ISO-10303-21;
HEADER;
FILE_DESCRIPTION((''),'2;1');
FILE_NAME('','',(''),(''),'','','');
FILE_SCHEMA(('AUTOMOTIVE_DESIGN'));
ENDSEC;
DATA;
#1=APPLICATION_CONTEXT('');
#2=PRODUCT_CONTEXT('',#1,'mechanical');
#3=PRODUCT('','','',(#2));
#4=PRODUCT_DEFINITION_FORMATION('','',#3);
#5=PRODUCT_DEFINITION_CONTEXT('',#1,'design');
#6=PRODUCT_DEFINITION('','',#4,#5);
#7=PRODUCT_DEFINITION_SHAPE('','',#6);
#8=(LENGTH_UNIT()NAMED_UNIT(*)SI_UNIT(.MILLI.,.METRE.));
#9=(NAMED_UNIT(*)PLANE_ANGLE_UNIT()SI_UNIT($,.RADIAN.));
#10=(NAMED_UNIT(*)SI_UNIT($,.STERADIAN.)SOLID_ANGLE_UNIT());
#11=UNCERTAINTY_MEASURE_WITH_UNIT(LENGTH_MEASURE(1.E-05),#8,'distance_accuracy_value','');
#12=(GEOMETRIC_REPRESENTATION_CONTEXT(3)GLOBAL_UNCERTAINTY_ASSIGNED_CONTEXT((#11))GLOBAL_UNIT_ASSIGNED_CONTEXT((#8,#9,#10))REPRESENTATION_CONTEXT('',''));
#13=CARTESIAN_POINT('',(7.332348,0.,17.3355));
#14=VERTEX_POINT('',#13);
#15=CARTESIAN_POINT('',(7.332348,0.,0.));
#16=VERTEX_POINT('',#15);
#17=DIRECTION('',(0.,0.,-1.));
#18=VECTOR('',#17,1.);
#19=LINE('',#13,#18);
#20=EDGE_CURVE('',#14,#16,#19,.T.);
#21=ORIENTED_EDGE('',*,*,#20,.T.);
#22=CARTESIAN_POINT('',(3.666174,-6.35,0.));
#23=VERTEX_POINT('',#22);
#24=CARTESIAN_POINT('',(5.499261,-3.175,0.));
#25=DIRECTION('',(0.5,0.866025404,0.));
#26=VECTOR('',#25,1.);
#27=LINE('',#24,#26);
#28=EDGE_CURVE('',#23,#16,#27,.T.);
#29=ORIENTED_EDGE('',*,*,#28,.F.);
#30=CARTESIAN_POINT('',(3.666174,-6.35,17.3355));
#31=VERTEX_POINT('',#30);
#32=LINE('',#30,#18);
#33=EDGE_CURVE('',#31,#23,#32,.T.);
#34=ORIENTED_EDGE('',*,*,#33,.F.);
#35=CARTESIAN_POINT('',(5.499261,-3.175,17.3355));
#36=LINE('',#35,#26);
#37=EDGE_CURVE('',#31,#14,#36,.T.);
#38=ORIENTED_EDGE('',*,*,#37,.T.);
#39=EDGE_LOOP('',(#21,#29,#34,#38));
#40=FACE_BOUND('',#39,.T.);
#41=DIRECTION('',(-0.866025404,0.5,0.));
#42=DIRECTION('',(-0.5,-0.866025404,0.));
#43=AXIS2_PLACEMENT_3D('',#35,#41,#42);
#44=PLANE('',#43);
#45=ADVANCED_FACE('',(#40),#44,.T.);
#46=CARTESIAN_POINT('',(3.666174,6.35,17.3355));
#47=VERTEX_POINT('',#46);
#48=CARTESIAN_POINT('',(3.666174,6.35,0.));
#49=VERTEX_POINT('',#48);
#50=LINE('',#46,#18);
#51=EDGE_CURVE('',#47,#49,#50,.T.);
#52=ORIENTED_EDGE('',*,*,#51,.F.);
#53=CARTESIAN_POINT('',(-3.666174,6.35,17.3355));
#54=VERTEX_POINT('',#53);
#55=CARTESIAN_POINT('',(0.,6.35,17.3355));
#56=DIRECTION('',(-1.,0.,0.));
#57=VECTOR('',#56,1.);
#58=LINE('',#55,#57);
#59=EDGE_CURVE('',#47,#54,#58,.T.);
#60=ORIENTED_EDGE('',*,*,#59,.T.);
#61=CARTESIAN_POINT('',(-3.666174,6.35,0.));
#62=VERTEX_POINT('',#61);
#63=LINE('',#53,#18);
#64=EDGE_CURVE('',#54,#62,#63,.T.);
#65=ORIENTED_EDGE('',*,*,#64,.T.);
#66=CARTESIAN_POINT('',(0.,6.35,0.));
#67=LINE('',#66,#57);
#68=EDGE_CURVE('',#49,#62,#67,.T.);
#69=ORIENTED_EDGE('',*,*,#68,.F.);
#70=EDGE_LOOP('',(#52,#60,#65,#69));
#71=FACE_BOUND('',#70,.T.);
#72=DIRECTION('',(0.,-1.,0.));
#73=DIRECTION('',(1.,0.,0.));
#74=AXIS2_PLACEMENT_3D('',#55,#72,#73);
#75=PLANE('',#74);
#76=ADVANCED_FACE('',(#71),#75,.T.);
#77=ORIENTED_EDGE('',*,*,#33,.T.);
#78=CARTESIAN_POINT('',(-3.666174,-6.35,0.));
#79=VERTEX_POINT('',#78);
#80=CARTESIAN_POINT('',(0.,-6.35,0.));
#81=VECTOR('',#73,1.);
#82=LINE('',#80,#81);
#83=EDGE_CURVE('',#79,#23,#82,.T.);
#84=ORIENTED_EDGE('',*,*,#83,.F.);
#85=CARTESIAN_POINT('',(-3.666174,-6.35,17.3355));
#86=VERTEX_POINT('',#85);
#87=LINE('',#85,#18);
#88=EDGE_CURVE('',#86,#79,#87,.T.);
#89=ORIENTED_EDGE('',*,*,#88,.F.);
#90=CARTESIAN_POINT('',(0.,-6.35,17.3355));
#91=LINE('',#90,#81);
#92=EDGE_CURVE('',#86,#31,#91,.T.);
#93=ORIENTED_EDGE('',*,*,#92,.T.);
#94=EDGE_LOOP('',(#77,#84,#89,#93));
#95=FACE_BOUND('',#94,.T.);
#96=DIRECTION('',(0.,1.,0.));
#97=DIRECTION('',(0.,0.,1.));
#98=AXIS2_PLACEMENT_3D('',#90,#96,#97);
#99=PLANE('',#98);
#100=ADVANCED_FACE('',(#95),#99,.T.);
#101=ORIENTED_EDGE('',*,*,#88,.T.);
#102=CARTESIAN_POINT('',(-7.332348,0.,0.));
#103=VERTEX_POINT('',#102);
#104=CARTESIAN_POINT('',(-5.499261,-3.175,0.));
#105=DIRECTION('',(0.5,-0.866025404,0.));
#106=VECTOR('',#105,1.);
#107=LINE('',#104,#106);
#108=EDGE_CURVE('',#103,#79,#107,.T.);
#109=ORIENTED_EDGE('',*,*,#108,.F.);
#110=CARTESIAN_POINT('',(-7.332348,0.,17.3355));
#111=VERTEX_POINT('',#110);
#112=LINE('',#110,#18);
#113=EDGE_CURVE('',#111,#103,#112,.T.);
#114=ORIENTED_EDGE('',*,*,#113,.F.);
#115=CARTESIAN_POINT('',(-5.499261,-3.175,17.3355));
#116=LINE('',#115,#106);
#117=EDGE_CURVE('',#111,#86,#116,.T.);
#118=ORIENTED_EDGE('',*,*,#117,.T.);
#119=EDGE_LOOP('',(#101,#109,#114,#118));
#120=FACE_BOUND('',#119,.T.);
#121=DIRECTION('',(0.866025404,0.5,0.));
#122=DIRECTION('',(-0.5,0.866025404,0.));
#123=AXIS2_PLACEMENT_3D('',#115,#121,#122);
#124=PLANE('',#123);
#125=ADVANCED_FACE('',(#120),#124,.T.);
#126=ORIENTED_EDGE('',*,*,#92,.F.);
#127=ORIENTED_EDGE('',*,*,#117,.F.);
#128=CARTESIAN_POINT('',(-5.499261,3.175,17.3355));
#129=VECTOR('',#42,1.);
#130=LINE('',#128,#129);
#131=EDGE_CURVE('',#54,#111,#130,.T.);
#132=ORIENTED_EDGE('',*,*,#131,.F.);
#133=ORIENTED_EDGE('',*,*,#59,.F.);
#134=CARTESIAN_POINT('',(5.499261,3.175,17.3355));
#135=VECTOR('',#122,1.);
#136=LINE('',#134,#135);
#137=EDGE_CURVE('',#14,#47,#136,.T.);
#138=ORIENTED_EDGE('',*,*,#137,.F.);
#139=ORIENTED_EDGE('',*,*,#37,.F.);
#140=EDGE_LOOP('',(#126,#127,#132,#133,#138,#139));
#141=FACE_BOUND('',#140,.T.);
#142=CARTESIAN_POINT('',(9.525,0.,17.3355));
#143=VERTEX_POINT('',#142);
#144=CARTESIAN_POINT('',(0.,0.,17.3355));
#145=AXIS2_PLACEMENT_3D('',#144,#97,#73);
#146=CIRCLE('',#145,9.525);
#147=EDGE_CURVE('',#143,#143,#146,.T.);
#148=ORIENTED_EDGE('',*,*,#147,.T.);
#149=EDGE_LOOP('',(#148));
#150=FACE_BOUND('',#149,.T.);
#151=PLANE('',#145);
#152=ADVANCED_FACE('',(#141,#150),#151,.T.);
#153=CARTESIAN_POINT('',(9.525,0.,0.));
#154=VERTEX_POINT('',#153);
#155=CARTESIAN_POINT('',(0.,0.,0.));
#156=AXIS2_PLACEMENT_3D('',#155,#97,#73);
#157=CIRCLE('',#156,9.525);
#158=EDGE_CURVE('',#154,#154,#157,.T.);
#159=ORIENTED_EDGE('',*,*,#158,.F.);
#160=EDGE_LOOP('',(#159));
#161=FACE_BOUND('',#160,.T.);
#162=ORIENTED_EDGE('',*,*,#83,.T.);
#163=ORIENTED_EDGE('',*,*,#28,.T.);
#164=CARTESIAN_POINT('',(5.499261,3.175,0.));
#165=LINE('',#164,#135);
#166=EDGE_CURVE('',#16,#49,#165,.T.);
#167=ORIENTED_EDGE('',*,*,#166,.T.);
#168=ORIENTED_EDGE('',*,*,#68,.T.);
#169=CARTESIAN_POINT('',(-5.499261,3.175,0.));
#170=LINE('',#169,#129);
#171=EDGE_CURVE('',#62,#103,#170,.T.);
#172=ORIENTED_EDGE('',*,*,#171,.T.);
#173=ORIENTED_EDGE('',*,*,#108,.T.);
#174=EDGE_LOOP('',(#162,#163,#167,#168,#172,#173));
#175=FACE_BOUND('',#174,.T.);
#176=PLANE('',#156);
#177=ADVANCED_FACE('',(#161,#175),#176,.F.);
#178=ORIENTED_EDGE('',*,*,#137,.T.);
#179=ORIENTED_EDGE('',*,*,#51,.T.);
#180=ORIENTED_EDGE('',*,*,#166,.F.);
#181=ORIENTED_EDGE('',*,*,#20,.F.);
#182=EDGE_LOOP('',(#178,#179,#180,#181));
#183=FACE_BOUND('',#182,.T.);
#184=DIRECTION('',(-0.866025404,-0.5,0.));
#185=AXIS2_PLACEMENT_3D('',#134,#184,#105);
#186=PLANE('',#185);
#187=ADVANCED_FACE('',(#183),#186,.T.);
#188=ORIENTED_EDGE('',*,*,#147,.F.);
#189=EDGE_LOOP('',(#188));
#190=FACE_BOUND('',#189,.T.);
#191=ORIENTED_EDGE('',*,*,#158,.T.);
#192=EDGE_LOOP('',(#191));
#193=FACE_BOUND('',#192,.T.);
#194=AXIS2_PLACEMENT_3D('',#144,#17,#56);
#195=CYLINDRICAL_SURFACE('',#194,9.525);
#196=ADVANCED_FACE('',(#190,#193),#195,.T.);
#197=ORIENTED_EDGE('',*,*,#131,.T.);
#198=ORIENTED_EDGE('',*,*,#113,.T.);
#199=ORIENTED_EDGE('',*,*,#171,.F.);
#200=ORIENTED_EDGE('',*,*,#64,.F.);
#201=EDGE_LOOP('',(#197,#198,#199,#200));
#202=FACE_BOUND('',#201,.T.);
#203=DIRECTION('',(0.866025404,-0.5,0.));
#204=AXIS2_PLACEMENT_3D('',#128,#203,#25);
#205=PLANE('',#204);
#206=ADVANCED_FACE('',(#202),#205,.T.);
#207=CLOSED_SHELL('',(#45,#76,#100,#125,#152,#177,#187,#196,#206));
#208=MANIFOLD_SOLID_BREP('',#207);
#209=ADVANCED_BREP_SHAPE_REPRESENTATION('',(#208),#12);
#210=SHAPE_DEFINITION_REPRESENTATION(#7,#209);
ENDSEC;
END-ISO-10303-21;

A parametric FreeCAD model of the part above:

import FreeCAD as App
import Part
import Sketcher
from FreeCAD import Vector
Q = App.Units.Quantity

doc = App.newDocument("Part")
params = doc.addObject("Spreadsheet::Sheet", "Params")
for row, (alias, value) in enumerate([
    ("sketch1_diameter", "0.75 in"),
    ("pad1_length", "0.6825 in"),
], start=1):
    params.set(f"A{row}", alias)
    params.set(f"B{row}", "=" + value)
    params.setAlias(f"B{row}", alias)

body = doc.addObject("PartDesign::Body", "Body")

# Sketch on XY plane
sketch1 = body.newObject("Sketcher::SketchObject", "Sketch")
sketch1.AttachmentSupport = (doc.getObject("XY_Plane"), [""])
sketch1.MapMode = "FlatFace"
sketch1.addGeometry([
    Part.Circle(Vector(0, 0, 0), Vector(0, 0, 1), 10),  # 0
    Part.LineSegment(Vector(4, 6, 0), Vector(7, 0, 0)),  # 1
    Part.LineSegment(Vector(7, 0, 0), Vector(4, -6, 0)),  # 2
    Part.LineSegment(Vector(4, -6, 0), Vector(-4, -6, 0)),  # 3
    Part.LineSegment(Vector(-4, -6, 0), Vector(-7, 0, 0)),  # 4
    Part.LineSegment(Vector(-7, 0, 0), Vector(-4, 6, 0)),  # 5
    Part.LineSegment(Vector(-4, 6, 0), Vector(4, 6, 0)),  # 6
], False)
sketch1.addConstraint([
    Sketcher.Constraint("Coincident", 1, 2, 2, 1),
    Sketcher.Constraint("Coincident", 2, 2, 3, 1),
    Sketcher.Constraint("Coincident", 3, 2, 4, 1),
    Sketcher.Constraint("Coincident", 4, 2, 5, 1),
    Sketcher.Constraint("Coincident", 5, 2, 6, 1),
    Sketcher.Constraint("Coincident", 6, 2, 1, 1),
    Sketcher.Constraint("Horizontal", 3),
    Sketcher.Constraint("Horizontal", 6),
    Sketcher.Constraint("Coincident", 0, 3, -1, 1),
    Sketcher.Constraint("Symmetric", 1, 2, 4, 2, -1, 1),
    Sketcher.Constraint("Symmetric", 2, 2, 5, 2, -1, 1),
    Sketcher.Constraint("PointOnObject", 1, 2, -1),
    Sketcher.Constraint("Parallel", 1, 4),
    Sketcher.Constraint("Vertical", 3, 2, 5, 2),
    Sketcher.Constraint("Diameter", 0, Q("0.75 in")),
    Sketcher.Constraint("Angle", 1, Q("-60 deg")),
    Sketcher.Constraint("DistanceY", 3, 2, 5, 2, Q("0.5 in")),
    Sketcher.Constraint("DistanceX", 3, 2, 3, 1, Q("7.332348 mm")),
])
sketch1.setExpression("Constraints[14]", "Params.sketch1_diameter")
pad1 = body.newObject("PartDesign::Pad", "Pad")
pad1.Profile = sketch1
pad1.setExpression("Length", "Params.pad1_length")

doc.recompute()
